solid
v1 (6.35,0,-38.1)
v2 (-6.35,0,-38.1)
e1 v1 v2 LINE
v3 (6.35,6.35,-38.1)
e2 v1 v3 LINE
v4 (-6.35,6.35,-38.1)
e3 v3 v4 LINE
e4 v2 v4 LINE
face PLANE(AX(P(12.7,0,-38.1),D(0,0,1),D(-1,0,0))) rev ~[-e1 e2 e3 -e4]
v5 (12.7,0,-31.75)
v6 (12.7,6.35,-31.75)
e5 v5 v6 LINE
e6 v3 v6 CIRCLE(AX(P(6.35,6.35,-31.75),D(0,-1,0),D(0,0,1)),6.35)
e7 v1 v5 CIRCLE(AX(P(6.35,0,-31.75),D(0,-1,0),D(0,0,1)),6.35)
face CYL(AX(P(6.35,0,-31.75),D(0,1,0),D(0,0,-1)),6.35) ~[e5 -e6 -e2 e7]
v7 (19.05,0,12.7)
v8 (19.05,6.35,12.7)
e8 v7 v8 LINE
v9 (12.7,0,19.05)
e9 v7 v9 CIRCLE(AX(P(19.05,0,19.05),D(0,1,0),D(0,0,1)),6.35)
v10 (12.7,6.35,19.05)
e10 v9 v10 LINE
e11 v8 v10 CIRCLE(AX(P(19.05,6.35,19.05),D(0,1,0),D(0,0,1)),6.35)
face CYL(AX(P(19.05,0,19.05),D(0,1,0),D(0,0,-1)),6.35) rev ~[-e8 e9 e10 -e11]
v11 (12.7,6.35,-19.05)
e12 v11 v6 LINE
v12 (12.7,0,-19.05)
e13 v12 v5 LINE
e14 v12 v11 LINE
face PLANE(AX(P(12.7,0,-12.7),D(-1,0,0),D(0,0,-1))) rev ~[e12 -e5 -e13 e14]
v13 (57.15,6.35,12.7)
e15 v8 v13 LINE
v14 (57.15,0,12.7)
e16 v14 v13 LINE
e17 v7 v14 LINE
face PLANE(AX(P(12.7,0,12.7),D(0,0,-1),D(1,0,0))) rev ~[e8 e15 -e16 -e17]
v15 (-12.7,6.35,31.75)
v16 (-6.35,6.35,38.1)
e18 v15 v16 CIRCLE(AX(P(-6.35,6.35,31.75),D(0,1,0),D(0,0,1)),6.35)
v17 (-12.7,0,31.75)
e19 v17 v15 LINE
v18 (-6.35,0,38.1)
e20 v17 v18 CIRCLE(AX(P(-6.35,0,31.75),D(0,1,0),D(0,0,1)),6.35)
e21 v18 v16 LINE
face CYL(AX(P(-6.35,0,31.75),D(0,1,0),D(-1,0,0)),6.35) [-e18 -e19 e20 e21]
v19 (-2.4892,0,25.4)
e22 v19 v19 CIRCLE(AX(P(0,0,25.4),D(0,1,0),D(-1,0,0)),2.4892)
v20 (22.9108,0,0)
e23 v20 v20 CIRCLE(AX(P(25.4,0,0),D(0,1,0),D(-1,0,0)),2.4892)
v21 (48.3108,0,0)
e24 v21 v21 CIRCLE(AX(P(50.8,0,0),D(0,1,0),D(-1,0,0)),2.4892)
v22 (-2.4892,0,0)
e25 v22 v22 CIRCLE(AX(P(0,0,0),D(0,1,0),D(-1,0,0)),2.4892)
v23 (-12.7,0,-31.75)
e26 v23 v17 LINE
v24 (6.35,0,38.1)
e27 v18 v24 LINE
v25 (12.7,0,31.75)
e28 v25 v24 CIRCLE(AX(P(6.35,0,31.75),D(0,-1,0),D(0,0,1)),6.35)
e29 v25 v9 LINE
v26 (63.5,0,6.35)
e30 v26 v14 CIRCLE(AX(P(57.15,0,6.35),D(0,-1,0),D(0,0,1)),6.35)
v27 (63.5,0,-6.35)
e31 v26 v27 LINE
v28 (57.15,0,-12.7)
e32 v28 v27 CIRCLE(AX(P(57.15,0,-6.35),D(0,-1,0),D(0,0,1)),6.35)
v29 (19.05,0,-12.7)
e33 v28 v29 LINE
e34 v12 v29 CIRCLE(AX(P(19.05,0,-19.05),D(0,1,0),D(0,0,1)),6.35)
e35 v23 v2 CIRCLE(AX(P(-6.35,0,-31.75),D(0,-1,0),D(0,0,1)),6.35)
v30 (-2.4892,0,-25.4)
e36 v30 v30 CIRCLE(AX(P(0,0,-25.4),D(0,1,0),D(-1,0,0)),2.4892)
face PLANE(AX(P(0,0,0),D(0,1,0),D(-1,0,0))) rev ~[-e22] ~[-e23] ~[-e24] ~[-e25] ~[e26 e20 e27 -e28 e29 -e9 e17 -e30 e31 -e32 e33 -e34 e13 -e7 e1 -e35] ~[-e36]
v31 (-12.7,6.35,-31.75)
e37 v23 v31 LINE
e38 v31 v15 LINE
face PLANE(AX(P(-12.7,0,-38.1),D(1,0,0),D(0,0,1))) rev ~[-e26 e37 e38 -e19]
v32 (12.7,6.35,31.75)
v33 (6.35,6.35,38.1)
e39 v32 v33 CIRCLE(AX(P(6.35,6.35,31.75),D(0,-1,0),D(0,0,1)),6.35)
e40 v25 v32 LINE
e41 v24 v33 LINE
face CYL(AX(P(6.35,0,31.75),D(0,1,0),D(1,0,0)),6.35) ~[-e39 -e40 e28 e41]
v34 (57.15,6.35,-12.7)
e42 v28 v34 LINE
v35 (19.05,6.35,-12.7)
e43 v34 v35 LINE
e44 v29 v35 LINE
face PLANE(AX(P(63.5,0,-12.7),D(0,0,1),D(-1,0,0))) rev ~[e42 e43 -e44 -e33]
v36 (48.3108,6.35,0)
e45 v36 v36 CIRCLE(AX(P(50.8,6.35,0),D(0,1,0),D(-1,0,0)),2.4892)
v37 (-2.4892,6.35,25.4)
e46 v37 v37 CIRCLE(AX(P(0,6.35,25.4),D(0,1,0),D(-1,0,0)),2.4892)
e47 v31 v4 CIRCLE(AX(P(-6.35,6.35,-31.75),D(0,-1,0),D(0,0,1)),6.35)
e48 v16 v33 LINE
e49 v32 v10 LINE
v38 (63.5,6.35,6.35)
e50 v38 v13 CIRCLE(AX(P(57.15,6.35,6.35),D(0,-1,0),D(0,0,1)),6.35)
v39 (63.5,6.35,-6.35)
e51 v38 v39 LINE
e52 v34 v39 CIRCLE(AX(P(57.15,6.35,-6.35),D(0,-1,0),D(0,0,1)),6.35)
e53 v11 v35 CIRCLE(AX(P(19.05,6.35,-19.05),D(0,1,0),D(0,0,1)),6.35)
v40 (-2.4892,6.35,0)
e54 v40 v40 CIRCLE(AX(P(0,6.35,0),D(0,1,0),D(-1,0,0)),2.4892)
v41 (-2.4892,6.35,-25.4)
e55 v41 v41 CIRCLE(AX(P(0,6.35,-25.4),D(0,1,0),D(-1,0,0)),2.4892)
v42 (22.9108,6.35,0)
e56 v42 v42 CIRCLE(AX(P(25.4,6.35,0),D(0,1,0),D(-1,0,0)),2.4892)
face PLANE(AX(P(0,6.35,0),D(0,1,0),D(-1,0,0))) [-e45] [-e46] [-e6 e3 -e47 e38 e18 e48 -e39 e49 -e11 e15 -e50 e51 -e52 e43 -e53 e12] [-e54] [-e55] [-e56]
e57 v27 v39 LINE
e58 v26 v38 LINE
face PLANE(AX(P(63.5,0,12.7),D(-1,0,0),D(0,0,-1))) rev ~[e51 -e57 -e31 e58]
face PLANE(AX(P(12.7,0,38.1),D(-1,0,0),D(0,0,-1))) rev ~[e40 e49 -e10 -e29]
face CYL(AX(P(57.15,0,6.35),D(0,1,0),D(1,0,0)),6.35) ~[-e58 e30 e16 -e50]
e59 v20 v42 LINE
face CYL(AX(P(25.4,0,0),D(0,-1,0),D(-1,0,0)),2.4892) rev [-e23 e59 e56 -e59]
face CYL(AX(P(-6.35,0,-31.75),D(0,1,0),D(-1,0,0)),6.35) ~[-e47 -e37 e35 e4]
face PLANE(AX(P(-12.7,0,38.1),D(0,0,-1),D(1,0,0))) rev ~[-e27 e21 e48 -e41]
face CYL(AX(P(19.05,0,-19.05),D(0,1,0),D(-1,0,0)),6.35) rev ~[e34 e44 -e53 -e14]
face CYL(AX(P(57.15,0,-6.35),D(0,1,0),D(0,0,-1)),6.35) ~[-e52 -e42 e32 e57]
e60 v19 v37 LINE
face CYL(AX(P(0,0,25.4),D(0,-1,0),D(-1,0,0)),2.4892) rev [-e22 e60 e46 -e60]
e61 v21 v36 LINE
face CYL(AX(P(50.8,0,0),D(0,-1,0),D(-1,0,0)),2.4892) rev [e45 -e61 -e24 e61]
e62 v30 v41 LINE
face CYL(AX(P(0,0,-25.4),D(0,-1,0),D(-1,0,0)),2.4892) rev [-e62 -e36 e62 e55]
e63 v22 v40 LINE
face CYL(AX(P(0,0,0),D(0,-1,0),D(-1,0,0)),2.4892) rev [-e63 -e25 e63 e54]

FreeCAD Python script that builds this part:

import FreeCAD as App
import Part
import Sketcher
from FreeCAD import Vector
Q = App.Units.Quantity


def edges_at(feature, points):
    """Names of the edges that pass closest to the given points."""
    edges = feature.Shape.Edges
    near = lambda p: min(range(len(edges)), key=lambda i: edges[i].distToShape(Part.Vertex(*p))[0])
    return sorted({f"Edge{near(p) + 1}" for p in points})

doc = App.newDocument("Part")
params = doc.addObject("Spreadsheet::Sheet", "Params")
for row, (alias, value) in enumerate([
    ("sketch1_width", "1 in"),
    ("sketch1_diameter", "0.196 in"),
    ("pad1_length", "0.25 in"),
    ("fillet_radius", "0.25 in"),
], start=1):
    params.set(f"A{row}", alias)
    params.set(f"B{row}", "=" + value)
    params.setAlias(f"B{row}", alias)

body = doc.addObject("PartDesign::Body", "Body")

sketch1 = doc.addObject("Sketcher::SketchObject", "Sketch")
body.addObject(sketch1)
sketch1.AttachmentSupport = (doc.XZ_Plane, [""])
sketch1.MapMode = "FlatFace"
sketch1.addGeometry(Part.LineSegment(Vector(-12.7, -38.1, 0), Vector(-12.7, 38.1, 0)), False)
sketch1.addGeometry(Part.LineSegment(Vector(-12.7, 38.1, 0), Vector(12.7, 38.1, 0)), False)
sketch1.addGeometry(Part.LineSegment(Vector(12.7, 38.1, 0), Vector(12.7, 12.7, 0)), False)
sketch1.addGeometry(Part.LineSegment(Vector(12.7, 12.7, 0), Vector(63.5, 12.7, 0)), False)
sketch1.addGeometry(Part.LineSegment(Vector(63.5, 12.7, 0), Vector(63.5, -12.7, 0)), False)
sketch1.addGeometry(Part.LineSegment(Vector(63.5, -12.7, 0), Vector(12.7, -12.7, 0)), False)
sketch1.addGeometry(Part.LineSegment(Vector(12.7, -12.7, 0), Vector(12.7, -38.1, 0)), False)
sketch1.addGeometry(Part.LineSegment(Vector(12.7, -38.1, 0), Vector(-12.7, -38.1, 0)), False)
sketch1.addGeometry(Part.Circle(Vector(0, -25.4, 0), Vector(0, 0, 1), 2.4892), False)
sketch1.addGeometry(Part.Circle(Vector(50.8, 0, 0), Vector(0, 0, 1), 2.4892), False)
sketch1.addGeometry(Part.Circle(Vector(25.4, 0, 0), Vector(0, 0, 1), 2.4892), False)
sketch1.addGeometry(Part.Circle(Vector(0, 0, 0), Vector(0, 0, 1), 2.4892), False)
sketch1.addGeometry(Part.Circle(Vector(0, 25.4, 0), Vector(0, 0, 1), 2.4892), False)
sketch1.addConstraint(Sketcher.Constraint("Coincident", 0, 2, 1, 1))
sketch1.addConstraint(Sketcher.Constraint("Coincident", 1, 2, 2, 1))
sketch1.addConstraint(Sketcher.Constraint("Coincident", 2, 2, 3, 1))
sketch1.addConstraint(Sketcher.Constraint("Coincident", 3, 2, 4, 1))
sketch1.addConstraint(Sketcher.Constraint("Coincident", 4, 2, 5, 1))
sketch1.addConstraint(Sketcher.Constraint("Coincident", 5, 2, 6, 1))
sketch1.addConstraint(Sketcher.Constraint("Coincident", 6, 2, 7, 1))
sketch1.addConstraint(Sketcher.Constraint("Coincident", 7, 2, 0, 1))
sketch1.addConstraint(Sketcher.Constraint("Vertical", 0))
sketch1.addConstraint(Sketcher.Constraint("Horizontal", 1))
sketch1.addConstraint(Sketcher.Constraint("Vertical", 2))
sketch1.addConstraint(Sketcher.Constraint("Horizontal", 3))
sketch1.addConstraint(Sketcher.Constraint("Vertical", 4))
sketch1.addConstraint(Sketcher.Constraint("Horizontal", 5))
sketch1.addConstraint(Sketcher.Constraint("Vertical", 6))
sketch1.addConstraint(Sketcher.Constraint("Horizontal", 7))
sketch1.addConstraint(Sketcher.Constraint("Coincident", 11, 3, -1, 1))
sketch1.addConstraint(Sketcher.Constraint("Equal", 8, 9))
sketch1.addConstraint(Sketcher.Constraint("Equal", 9, 10))
sketch1.addConstraint(Sketcher.Constraint("Equal", 10, 11))
sketch1.addConstraint(Sketcher.Constraint("Equal", 11, 12))
sketch1.addConstraint(Sketcher.Constraint("Symmetric", 8, 3, 12, 3, -1, 1))
sketch1.addConstraint(Sketcher.Constraint("Symmetric", 0, 2, 6, 2, -1, 1))
sketch1.addConstraint(Sketcher.Constraint("Symmetric", 2, 2, 5, 2, -1))
sketch1.addConstraint(Sketcher.Constraint("PointOnObject", 8, 3, -2))
sketch1.addConstraint(Sketcher.Constraint("PointOnObject", 9, 3, -1))
sketch1.addConstraint(Sketcher.Constraint("PointOnObject", 10, 3, -1))
sketch1.addConstraint(Sketcher.Constraint("Equal", 7, 2))
sketch1.addConstraint(Sketcher.Constraint("Equal", 2, 4))
sketch1.addConstraint(Sketcher.Constraint("DistanceX", 1, 1, 1, 2, Q("1 in")))
sketch1.addConstraint(Sketcher.Constraint("Diameter", 8, Q("0.196 in")))
sketch1.addConstraint(Sketcher.Constraint("DistanceY", 8, 3, -1, 1, Q("1 in")))
sketch1.addConstraint(Sketcher.Constraint("DistanceX", -1, 1, 10, 3, Q("1 in")))
sketch1.addConstraint(Sketcher.Constraint("DistanceX", 10, 3, 9, 3, Q("1 in")))
sketch1.addConstraint(Sketcher.Constraint("DistanceX", 9, 3, 3, 2, Q("0.5 in")))
sketch1.setExpression("Constraints[29]", "Params.sketch1_width")
sketch1.setExpression("Constraints[30]", "Params.sketch1_diameter")
pad1 = doc.addObject("PartDesign::Pad", "Pad")
body.addObject(pad1)
pad1.Profile = sketch1
pad1.setExpression("Length", "Params.pad1_length")
pad1.Reversed = True
doc.recompute()

fillet = doc.addObject("PartDesign::Fillet", "Fillet")
body.addObject(fillet)
fillet.Base = (pad1, edges_at(pad1, [
    (-12.7, 3.175, 38.1),
    (12.7, 3.175, 38.1),
    (12.7, 3.175, 12.7),
    (63.5, 3.175, 12.7),
    (63.5, 3.175, -12.7),
    (12.7, 3.175, -12.7),
    (12.7, 3.175, -38.1),
    (-12.7, 3.175, -38.1),
]))
fillet.setExpression("Radius", "Params.fillet_radius")

doc.recompute()
